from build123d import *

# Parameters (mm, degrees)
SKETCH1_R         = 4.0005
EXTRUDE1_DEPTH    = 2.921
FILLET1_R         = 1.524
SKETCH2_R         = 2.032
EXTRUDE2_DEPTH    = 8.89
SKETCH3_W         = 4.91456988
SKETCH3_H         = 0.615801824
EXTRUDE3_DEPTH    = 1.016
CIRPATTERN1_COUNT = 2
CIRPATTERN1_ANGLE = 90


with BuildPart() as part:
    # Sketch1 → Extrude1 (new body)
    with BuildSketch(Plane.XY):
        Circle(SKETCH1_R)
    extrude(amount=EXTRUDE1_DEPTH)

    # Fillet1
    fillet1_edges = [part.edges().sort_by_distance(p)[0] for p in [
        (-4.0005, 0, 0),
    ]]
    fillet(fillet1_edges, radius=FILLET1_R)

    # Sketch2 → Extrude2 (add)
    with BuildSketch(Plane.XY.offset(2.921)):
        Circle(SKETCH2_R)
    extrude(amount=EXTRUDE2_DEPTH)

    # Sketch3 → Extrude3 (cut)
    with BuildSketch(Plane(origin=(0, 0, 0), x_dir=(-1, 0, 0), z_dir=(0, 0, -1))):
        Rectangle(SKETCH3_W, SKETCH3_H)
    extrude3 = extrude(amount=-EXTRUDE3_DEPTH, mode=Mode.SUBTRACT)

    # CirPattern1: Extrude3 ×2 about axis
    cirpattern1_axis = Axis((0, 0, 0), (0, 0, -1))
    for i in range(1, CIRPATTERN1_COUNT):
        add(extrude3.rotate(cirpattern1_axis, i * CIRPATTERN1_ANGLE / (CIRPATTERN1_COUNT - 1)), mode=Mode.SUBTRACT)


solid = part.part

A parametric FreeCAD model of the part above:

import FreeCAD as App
import Part
import Sketcher
Q = App.Units.Quantity


def edges_at(feature, points):
    """Names of the edges that pass closest to the given points."""
    edges = feature.Shape.Edges
    near = lambda p: min(range(len(edges)), key=lambda i: edges[i].distToShape(Part.Vertex(*p))[0])
    return sorted({f"Edge{near(p) + 1}" for p in points})


def add_polygon(sketch, points):
    """Adds a closed chain of lines whose ends are joined by coincident constraints."""
    first, n = sketch.GeometryCount, len(points)
    for a, b in zip(points, points[1:] + points[:1]):
        sketch.addGeometry(Part.LineSegment(App.Vector(*a, 0), App.Vector(*b, 0)), False)
    for i in range(n):
        sketch.addConstraint(Sketcher.Constraint("Coincident", first + i, 2, first + (i + 1) % n, 1))

doc = App.newDocument("Part")
body = doc.addObject("PartDesign::Body", "Body")

sketch1 = body.newObject("Sketcher::SketchObject", "Sketch")
sketch1.AttachmentSupport = (doc.getObject("XY_Plane"), [""])
sketch1.MapMode = "FlatFace"
sketch1.addGeometry(Part.Circle(App.Vector(0, 0, 0), App.Vector(0, 0, 1), 4), False)
sketch1.addConstraint([
    Sketcher.Constraint("Coincident", 0, 3, -1, 1),
    Sketcher.Constraint("Diameter", 0, Q("0.315 in")),
])
pad1 = body.newObject("PartDesign::Pad", "Pad")
pad1.Profile = sketch1
pad1.Length = Q("0.115 in")
doc.recompute()

fillet = body.newObject("PartDesign::Fillet", "Fillet")
fillet.Base = (pad1, edges_at(pad1, [(-4, 0, 0)]))
fillet.Radius = Q("0.06 in")

sketch2 = body.newObject("Sketcher::SketchObject", "Sketch001")
sketch2.AttachmentSupport = (doc.getObject("XY_Plane"), [""])
sketch2.MapMode = "FlatFace"
sketch2.AttachmentOffset = App.Placement(App.Vector(0, 0, 0.115 * 25.4), App.Rotation())
sketch2.addGeometry(Part.Circle(App.Vector(0, 0, 0), App.Vector(0, 0, 1), 2), False)
sketch2.addConstraint([
    Sketcher.Constraint("Coincident", 0, 3, -1, 1),
    Sketcher.Constraint("Diameter", 0, Q("0.16 in")),
])
pad2 = body.newObject("PartDesign::Pad", "Pad001")
pad2.Profile = sketch2
pad2.Length = Q("0.35 in")

sketch3 = body.newObject("Sketcher::SketchObject", "Sketch002")
sketch3.AttachmentSupport = (doc.getObject("XY_Plane"), [""])
sketch3.MapMode = "FlatFace"
add_polygon(sketch3, [(2.5, 0.3), (2.5, -0.3), (-2.5, -0.3), (-2.5, 0.3)])
sketch3.addConstraint([
    Sketcher.Constraint("Vertical", 0),
    Sketcher.Constraint("Horizontal", 1),
    Sketcher.Constraint("Vertical", 2),
    Sketcher.Constraint("Horizontal", 3),
    Sketcher.Constraint("Symmetric", 0, 2, 2, 2, -1, 1),
    Sketcher.Constraint("DistanceY", 0, 2, 0, 1, Q("0.615802 mm")),
    Sketcher.Constraint("DistanceX", 1, 2, 1, 1, Q("4.91457 mm")),
])
pocket1 = body.newObject("PartDesign::Pocket", "Pocket")
pocket1.Profile = sketch3
pocket1.Length = Q("0.04 in")
pocket1.Reversed = True
doc.recompute()

polarpattern = body.newObject("PartDesign::PolarPattern", "PolarPattern")
polarpattern.Originals = [pocket1]
polarpattern.Axis = (doc.getObject("Z_Axis"), [""])
polarpattern.Angle = 90
polarpattern.Occurrences = 2
polarpattern.Reversed = True
body.Tip = polarpattern

doc.recompute()
